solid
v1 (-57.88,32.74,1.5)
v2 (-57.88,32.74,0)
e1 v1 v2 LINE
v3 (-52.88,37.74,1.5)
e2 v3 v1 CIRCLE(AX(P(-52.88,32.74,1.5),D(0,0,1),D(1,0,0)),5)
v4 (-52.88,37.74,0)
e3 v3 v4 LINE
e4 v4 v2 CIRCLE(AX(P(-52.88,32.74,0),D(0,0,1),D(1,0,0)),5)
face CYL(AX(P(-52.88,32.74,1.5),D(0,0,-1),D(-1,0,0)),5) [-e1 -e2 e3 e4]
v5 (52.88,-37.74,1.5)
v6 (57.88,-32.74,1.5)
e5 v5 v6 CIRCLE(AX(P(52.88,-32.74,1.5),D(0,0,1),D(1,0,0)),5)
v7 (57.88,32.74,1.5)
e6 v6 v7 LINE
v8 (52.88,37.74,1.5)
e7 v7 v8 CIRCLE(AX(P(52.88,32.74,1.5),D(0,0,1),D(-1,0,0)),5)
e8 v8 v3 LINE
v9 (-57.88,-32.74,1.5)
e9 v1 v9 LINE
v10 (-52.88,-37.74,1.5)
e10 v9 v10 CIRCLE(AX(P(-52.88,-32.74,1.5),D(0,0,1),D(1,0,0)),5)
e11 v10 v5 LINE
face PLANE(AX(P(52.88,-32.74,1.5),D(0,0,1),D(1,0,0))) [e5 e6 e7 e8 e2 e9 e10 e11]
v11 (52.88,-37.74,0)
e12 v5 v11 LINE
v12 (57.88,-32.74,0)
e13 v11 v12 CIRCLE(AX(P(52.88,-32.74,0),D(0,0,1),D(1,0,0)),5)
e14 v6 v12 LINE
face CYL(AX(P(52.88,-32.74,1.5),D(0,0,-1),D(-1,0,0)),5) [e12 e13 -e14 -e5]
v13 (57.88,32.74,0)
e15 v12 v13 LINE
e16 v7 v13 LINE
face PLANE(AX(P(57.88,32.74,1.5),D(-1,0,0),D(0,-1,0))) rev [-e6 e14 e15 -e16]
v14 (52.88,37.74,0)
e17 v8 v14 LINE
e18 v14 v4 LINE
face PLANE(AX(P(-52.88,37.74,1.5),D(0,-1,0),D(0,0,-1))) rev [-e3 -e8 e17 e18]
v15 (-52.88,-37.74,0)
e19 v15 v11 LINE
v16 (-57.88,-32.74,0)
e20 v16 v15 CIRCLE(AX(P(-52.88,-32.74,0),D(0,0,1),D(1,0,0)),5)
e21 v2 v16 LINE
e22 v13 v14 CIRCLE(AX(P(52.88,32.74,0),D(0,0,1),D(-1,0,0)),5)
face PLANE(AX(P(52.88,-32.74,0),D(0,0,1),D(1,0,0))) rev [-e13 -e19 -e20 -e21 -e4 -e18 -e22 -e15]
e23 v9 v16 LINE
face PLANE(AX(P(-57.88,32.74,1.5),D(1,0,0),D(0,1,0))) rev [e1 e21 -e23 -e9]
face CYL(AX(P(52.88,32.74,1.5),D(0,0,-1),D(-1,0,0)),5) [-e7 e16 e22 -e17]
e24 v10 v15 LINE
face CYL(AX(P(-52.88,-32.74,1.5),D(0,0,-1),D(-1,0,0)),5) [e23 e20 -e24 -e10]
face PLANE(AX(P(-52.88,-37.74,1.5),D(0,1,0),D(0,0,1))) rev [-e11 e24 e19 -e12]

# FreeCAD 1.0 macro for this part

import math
import FreeCAD as App
import Part
import Sketcher

V = App.Vector
Q = App.Units.Quantity

doc = App.newDocument("Part")
params = doc.addObject("Spreadsheet::Sheet", "Params")
for row, (alias, value) in enumerate([
    ("sketch1_radius", "5 mm"),
    ("sketch1_width", "105.76 mm"),
    ("sketch1_height", "65.48 mm"),
    ("pad1_length", "1.5 mm"),
], start=1):
    params.set(f"A{row}", alias)
    params.set(f"B{row}", "=" + value)
    params.setAlias(f"B{row}", alias)

body = doc.addObject("PartDesign::Body", "Body")

# Sketch on XY plane
sketch1 = body.newObject("Sketcher::SketchObject", "Sketch")
sketch1.AttachmentSupport = (doc.getObject("XY_Plane"), [""])
sketch1.MapMode = "FlatFace"
sketch1.addGeometry([
    Part.LineSegment(V(52.88, 37.74, 0), V(-52.88, 37.74, 0)),  # 0
    Part.ArcOfCircle(Part.Circle(V(-52.88, 32.74, 0), V(0, 0, 1), 5), math.radians(90), math.radians(180)),  # 1
    Part.LineSegment(V(-57.88, 32.74, 0), V(-57.88, -32.74, 0)),  # 2
    Part.ArcOfCircle(Part.Circle(V(-52.88, -32.74, 0), V(0, 0, 1), 5), math.radians(180), math.radians(270)),  # 3
    Part.LineSegment(V(-52.88, -37.74, 0), V(52.88, -37.74, 0)),  # 4
    Part.ArcOfCircle(Part.Circle(V(52.88, -32.74, 0), V(0, 0, 1), 5), math.radians(-90), math.radians(0)),  # 5
    Part.LineSegment(V(57.88, -32.74, 0), V(57.88, 32.74, 0)),  # 6
    Part.ArcOfCircle(Part.Circle(V(52.88, 32.74, 0), V(0, 0, 1), 5), math.radians(0), math.radians(90)),  # 7
], False)
sketch1.addConstraint([
    Sketcher.Constraint("Tangent", 0, 2, 1, 1),
    Sketcher.Constraint("Tangent", 1, 2, 2, 1),
    Sketcher.Constraint("Tangent", 2, 2, 3, 1),
    Sketcher.Constraint("Tangent", 3, 2, 4, 1),
    Sketcher.Constraint("Tangent", 4, 2, 5, 1),
    Sketcher.Constraint("Tangent", 5, 2, 6, 1),
    Sketcher.Constraint("Tangent", 6, 2, 7, 1),
    Sketcher.Constraint("Tangent", 7, 2, 0, 1),
    Sketcher.Constraint("Horizontal", 0),
    Sketcher.Constraint("Vertical", 2),
    Sketcher.Constraint("Horizontal", 4),
    Sketcher.Constraint("Vertical", 6),
    Sketcher.Constraint("Equal", 1, 3),
    Sketcher.Constraint("Equal", 3, 5),
    Sketcher.Constraint("Equal", 5, 7),
    Sketcher.Constraint("Symmetric", 1, 3, 5, 3, -1, 1),
    Sketcher.Constraint("Radius", 1, Q("5 mm")),
    Sketcher.Constraint("DistanceX", 0, 2, 0, 1, Q("105.76 mm")),
    Sketcher.Constraint("DistanceY", 2, 2, 2, 1, Q("65.48 mm")),
])
sketch1.setExpression("Constraints[16]", "Params.sketch1_radius")
sketch1.setExpression("Constraints[17]", "Params.sketch1_width")
sketch1.setExpression("Constraints[18]", "Params.sketch1_height")
pad1 = body.newObject("PartDesign::Pad", "Pad")
pad1.Profile = sketch1
pad1.setExpression("Length", "Params.pad1_length")

doc.recompute()
